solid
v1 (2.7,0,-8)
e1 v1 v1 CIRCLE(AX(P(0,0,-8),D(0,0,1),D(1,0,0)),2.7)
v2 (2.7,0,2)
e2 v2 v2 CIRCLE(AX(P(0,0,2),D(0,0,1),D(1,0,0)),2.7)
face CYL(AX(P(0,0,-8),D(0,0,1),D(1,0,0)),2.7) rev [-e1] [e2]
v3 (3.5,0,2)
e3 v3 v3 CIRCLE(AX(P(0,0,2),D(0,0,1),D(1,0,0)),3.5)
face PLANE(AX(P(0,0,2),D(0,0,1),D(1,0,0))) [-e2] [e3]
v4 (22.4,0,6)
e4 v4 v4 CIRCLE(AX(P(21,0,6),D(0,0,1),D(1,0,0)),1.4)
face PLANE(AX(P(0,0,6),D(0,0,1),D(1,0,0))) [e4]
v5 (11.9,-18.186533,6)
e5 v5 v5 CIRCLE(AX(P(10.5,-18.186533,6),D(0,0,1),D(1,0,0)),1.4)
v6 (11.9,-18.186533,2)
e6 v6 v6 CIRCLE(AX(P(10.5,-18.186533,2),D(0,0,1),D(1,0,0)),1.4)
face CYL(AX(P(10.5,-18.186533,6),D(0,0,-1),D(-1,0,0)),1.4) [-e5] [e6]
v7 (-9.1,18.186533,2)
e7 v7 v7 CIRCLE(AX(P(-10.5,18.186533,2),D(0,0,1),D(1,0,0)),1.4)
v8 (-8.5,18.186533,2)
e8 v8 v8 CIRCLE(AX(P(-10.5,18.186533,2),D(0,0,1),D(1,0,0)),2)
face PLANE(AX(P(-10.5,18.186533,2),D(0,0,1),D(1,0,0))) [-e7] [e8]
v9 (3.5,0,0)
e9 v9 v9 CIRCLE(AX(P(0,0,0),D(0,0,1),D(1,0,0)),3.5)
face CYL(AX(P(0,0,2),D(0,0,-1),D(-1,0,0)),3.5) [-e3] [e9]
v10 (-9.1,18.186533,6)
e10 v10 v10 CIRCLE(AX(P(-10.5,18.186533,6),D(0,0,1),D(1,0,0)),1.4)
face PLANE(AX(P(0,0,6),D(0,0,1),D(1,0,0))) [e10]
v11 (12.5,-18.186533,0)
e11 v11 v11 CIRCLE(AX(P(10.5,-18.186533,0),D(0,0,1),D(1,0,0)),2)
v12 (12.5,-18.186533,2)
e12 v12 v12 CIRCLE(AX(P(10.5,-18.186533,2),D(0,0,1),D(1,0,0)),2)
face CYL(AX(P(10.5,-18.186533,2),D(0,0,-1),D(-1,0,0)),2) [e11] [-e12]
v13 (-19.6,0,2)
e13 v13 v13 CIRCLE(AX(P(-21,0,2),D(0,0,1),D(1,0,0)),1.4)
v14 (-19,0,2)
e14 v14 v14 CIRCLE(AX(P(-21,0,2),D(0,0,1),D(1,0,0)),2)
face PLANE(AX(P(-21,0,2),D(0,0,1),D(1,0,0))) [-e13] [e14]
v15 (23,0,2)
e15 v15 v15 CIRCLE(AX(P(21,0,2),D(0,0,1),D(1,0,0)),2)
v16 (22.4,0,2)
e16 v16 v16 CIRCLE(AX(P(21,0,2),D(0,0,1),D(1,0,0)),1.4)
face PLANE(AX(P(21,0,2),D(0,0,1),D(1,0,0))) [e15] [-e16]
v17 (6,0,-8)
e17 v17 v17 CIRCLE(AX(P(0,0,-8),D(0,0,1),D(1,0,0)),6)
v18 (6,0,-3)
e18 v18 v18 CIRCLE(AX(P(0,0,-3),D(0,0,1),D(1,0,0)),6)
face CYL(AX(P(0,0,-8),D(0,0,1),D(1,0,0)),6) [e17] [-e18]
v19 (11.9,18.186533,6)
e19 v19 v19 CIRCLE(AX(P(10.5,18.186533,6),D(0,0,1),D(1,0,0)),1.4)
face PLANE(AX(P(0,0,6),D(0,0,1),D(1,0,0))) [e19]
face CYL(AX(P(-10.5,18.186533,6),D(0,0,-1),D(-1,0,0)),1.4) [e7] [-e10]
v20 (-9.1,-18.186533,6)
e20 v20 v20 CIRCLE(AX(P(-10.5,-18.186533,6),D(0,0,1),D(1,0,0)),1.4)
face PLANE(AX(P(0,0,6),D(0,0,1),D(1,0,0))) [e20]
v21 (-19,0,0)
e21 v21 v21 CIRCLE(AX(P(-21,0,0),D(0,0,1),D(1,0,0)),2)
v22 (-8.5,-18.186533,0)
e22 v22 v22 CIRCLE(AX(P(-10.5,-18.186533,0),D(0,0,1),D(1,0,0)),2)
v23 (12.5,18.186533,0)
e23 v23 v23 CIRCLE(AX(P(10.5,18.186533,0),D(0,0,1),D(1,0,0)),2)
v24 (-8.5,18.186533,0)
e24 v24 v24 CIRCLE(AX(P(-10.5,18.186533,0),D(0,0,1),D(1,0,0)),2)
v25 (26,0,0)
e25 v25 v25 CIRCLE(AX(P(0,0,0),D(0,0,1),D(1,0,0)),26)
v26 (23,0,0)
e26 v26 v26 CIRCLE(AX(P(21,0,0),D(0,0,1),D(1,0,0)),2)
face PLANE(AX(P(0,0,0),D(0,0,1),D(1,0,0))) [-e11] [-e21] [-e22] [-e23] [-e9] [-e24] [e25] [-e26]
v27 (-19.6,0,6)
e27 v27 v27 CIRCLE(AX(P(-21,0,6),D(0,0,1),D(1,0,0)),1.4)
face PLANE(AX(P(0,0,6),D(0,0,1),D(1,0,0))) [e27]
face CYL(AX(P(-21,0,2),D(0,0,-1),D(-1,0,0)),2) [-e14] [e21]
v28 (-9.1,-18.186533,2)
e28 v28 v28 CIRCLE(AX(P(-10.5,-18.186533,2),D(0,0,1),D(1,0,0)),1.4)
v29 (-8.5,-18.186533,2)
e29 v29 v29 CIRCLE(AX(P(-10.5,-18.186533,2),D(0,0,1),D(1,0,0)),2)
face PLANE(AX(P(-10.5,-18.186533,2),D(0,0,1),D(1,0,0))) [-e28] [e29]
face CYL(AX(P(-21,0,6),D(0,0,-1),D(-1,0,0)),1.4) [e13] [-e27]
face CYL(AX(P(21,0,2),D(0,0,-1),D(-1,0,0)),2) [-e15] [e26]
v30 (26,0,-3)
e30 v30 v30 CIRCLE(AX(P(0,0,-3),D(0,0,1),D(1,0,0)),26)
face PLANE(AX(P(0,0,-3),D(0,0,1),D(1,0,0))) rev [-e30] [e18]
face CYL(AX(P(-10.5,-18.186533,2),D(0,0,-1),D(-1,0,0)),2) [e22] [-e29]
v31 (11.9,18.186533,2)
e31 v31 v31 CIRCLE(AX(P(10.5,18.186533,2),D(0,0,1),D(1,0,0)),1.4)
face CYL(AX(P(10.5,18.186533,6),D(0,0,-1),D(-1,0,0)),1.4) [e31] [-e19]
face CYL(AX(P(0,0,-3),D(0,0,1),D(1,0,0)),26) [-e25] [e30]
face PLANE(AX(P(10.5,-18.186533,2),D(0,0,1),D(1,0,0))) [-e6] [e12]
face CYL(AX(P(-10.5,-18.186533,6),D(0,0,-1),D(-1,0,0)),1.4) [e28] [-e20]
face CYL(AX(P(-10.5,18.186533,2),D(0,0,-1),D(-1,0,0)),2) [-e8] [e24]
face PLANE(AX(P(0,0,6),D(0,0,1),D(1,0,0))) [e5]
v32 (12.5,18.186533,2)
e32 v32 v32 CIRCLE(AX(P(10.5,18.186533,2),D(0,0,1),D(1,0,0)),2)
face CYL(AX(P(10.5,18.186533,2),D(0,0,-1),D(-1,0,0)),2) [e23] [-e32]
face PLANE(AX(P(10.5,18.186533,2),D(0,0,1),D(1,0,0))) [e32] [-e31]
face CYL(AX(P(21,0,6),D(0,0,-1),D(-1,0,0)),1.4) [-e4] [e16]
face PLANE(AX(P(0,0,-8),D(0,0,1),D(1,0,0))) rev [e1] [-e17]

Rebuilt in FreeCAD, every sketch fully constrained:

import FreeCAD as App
import Part
import Sketcher

V = App.Vector

doc = App.newDocument("Part")
body = doc.addObject("PartDesign::Body", "Body")

sketch1 = body.newObject("Sketcher::SketchObject", "Sketch")
sketch1.AttachmentSupport = (doc.getObject("XY_Plane"), [""])
sketch1.MapMode = "FlatFace"
sketch1.addGeometry(Part.Circle(V(0, 0, 0), V(0, 0, 1), 26), False)
sketch1.addConstraint(Sketcher.Constraint("Coincident", 0, 3, -1, 1))
sketch1.addConstraint(Sketcher.Constraint("Diameter", 0, 52.0))
pad1 = body.newObject("PartDesign::Pad", "Pad")
pad1.Profile = sketch1
pad1.Length = 3
pad1.Reversed = True

sketch2 = body.newObject("Sketcher::SketchObject", "Sketch001")
sketch2.AttachmentSupport = (doc.getObject("XY_Plane"), [""])
sketch2.MapMode = "FlatFace"
sketch2.addGeometry(Part.Circle(V(-21, 0, 0), V(0, 0, 1), 1.4), False)
sketch2.addGeometry(Part.Circle(V(-10.5, 18.2, 0), V(0, 0, 1), 1.4), False)
sketch2.addGeometry(Part.Circle(V(10.5, 18.2, 0), V(0, 0, 1), 1.4), False)
sketch2.addGeometry(Part.Circle(V(21, 0, 0), V(0, 0, 1), 1.4), False)
sketch2.addGeometry(Part.Circle(V(10.5, -18.2, 0), V(0, 0, 1), 1.4), False)
sketch2.addGeometry(Part.Circle(V(-10.5, -18.2, 0), V(0, 0, 1), 1.4), False)
sketch2.addConstraint(Sketcher.Constraint("Equal", 0, 1))
sketch2.addConstraint(Sketcher.Constraint("Equal", 1, 2))
sketch2.addConstraint(Sketcher.Constraint("Equal", 2, 3))
sketch2.addConstraint(Sketcher.Constraint("Equal", 3, 4))
sketch2.addConstraint(Sketcher.Constraint("Equal", 4, 5))
sketch2.addConstraint(Sketcher.Constraint("Symmetric", 0, 3, 3, 3, -1, 1))
sketch2.addConstraint(Sketcher.Constraint("Symmetric", 1, 3, 4, 3, -1, 1))
sketch2.addConstraint(Sketcher.Constraint("Symmetric", 2, 3, 5, 3, -1, 1))
sketch2.addConstraint(Sketcher.Constraint("Symmetric", 1, 3, 2, 3, -2))
sketch2.addConstraint(Sketcher.Constraint("PointOnObject", 0, 3, -1))
sketch2.addConstraint(Sketcher.Constraint("Diameter", 0, 2.8))
sketch2.addConstraint(Sketcher.Constraint("DistanceX", 0, 3, -1, 1, 21.0))
sketch2.addConstraint(Sketcher.Constraint("DistanceX", 1, 3, 2, 3, 21.0))
sketch2.addConstraint(Sketcher.Constraint("DistanceY", -1, 1, 1, 3, 18.186533))
pad2 = body.newObject("PartDesign::Pad", "Pad001")
pad2.Profile = sketch2
pad2.Length = 6

sketch3 = body.newObject("Sketcher::SketchObject", "Sketch002")
sketch3.AttachmentSupport = (doc.getObject("XY_Plane"), [""])
sketch3.MapMode = "FlatFace"
sketch3.addGeometry(Part.Circle(V(-10.5, 18.2, 0), V(0, 0, 1), 2), False)
sketch3.addGeometry(Part.Circle(V(10.5, 18.2, 0), V(0, 0, 1), 2), False)
sketch3.addGeometry(Part.Circle(V(21, 0, 0), V(0, 0, 1), 2), False)
sketch3.addGeometry(Part.Circle(V(10.5, -18.2, 0), V(0, 0, 1), 2), False)
sketch3.addGeometry(Part.Circle(V(-10.5, -18.2, 0), V(0, 0, 1), 2), False)
sketch3.addGeometry(Part.Circle(V(-21, 0, 0), V(0, 0, 1), 2), False)
sketch3.addConstraint(Sketcher.Constraint("Equal", 0, 1))
sketch3.addConstraint(Sketcher.Constraint("Equal", 1, 2))
sketch3.addConstraint(Sketcher.Constraint("Equal", 2, 3))
sketch3.addConstraint(Sketcher.Constraint("Equal", 3, 4))
sketch3.addConstraint(Sketcher.Constraint("Equal", 4, 5))
sketch3.addConstraint(Sketcher.Constraint("Symmetric", 0, 3, 3, 3, -1, 1))
sketch3.addConstraint(Sketcher.Constraint("Symmetric", 1, 3, 4, 3, -1, 1))
sketch3.addConstraint(Sketcher.Constraint("Symmetric", 2, 3, 5, 3, -1, 1))
sketch3.addConstraint(Sketcher.Constraint("Symmetric", 0, 3, 1, 3, -2))
sketch3.addConstraint(Sketcher.Constraint("PointOnObject", 2, 3, -1))
sketch3.addConstraint(Sketcher.Constraint("Diameter", 0, 4.0))
sketch3.addConstraint(Sketcher.Constraint("DistanceX", -1, 1, 2, 3, 21.0))
sketch3.addConstraint(Sketcher.Constraint("DistanceX", 0, 3, 1, 3, 21.0))
sketch3.addConstraint(Sketcher.Constraint("DistanceY", -1, 1, 0, 3, 18.186533))
pad3 = body.newObject("PartDesign::Pad", "Pad002")
pad3.Profile = sketch3
pad3.Length = 2

sketch4 = body.newObject("Sketcher::SketchObject", "Sketch003")
sketch4.AttachmentSupport = (doc.getObject("XY_Plane"), [""])
sketch4.MapMode = "FlatFace"
sketch4.addGeometry(Part.Circle(V(0, 0, 0), V(0, 0, 1), 6), False)
sketch4.addConstraint(Sketcher.Constraint("Coincident", 0, 3, -1, 1))
sketch4.addConstraint(Sketcher.Constraint("Diameter", 0, 12.0))
pocket1 = body.newObject("PartDesign::Pocket", "Pocket")
pocket1.Profile = sketch4
pocket1.Type = "ThroughAll"

sketch5 = body.newObject("Sketcher::SketchObject", "Sketch004")
sketch5.AttachmentSupport = (doc.getObject("XY_Plane"), [""])
sketch5.MapMode = "FlatFace"
sketch5.addGeometry(Part.Circle(V(0, 0, 0), V(0, 0, 1), 6), False)
sketch5.addGeometry(Part.Circle(V(0, 0, 0), V(0, 0, 1), 2.7), False)
sketch5.addConstraint(Sketcher.Constraint("Coincident", 0, 3, -1, 1))
sketch5.addConstraint(Sketcher.Constraint("Coincident", 1, 3, -1, 1))
sketch5.addConstraint(Sketcher.Constraint("Diameter", 0, 12.0))
sketch5.addConstraint(Sketcher.Constraint("Diameter", 1, 5.4))
pad4 = body.newObject("PartDesign::Pad", "Pad003")
pad4.Profile = sketch5
pad4.Length = 8
pad4.Reversed = True

sketch6 = body.newObject("Sketcher::SketchObject", "Sketch005")
sketch6.AttachmentSupport = (doc.getObject("XY_Plane"), [""])
sketch6.MapMode = "FlatFace"
sketch6.AttachmentOffset = App.Placement(V(0, 0, 2), App.Rotation())
sketch6.addGeometry(Part.Circle(V(0, 0, 0), V(0, 0, 1), 3.5), False)
sketch6.addGeometry(Part.Circle(V(0, 0, 0), V(0, 0, 1), 2.7), False)
sketch6.addConstraint(Sketcher.Constraint("Coincident", 0, 3, -1, 1))
sketch6.addConstraint(Sketcher.Constraint("Coincident", 1, 3, -1, 1))
sketch6.addConstraint(Sketcher.Constraint("Diameter", 0, 7.0))
sketch6.addConstraint(Sketcher.Constraint("Diameter", 1, 5.4))
pad5 = body.newObject("PartDesign::Pad", "Pad004")
pad5.Profile = sketch6
pad5.Length = 2
pad5.Reversed = True

doc.recompute()
